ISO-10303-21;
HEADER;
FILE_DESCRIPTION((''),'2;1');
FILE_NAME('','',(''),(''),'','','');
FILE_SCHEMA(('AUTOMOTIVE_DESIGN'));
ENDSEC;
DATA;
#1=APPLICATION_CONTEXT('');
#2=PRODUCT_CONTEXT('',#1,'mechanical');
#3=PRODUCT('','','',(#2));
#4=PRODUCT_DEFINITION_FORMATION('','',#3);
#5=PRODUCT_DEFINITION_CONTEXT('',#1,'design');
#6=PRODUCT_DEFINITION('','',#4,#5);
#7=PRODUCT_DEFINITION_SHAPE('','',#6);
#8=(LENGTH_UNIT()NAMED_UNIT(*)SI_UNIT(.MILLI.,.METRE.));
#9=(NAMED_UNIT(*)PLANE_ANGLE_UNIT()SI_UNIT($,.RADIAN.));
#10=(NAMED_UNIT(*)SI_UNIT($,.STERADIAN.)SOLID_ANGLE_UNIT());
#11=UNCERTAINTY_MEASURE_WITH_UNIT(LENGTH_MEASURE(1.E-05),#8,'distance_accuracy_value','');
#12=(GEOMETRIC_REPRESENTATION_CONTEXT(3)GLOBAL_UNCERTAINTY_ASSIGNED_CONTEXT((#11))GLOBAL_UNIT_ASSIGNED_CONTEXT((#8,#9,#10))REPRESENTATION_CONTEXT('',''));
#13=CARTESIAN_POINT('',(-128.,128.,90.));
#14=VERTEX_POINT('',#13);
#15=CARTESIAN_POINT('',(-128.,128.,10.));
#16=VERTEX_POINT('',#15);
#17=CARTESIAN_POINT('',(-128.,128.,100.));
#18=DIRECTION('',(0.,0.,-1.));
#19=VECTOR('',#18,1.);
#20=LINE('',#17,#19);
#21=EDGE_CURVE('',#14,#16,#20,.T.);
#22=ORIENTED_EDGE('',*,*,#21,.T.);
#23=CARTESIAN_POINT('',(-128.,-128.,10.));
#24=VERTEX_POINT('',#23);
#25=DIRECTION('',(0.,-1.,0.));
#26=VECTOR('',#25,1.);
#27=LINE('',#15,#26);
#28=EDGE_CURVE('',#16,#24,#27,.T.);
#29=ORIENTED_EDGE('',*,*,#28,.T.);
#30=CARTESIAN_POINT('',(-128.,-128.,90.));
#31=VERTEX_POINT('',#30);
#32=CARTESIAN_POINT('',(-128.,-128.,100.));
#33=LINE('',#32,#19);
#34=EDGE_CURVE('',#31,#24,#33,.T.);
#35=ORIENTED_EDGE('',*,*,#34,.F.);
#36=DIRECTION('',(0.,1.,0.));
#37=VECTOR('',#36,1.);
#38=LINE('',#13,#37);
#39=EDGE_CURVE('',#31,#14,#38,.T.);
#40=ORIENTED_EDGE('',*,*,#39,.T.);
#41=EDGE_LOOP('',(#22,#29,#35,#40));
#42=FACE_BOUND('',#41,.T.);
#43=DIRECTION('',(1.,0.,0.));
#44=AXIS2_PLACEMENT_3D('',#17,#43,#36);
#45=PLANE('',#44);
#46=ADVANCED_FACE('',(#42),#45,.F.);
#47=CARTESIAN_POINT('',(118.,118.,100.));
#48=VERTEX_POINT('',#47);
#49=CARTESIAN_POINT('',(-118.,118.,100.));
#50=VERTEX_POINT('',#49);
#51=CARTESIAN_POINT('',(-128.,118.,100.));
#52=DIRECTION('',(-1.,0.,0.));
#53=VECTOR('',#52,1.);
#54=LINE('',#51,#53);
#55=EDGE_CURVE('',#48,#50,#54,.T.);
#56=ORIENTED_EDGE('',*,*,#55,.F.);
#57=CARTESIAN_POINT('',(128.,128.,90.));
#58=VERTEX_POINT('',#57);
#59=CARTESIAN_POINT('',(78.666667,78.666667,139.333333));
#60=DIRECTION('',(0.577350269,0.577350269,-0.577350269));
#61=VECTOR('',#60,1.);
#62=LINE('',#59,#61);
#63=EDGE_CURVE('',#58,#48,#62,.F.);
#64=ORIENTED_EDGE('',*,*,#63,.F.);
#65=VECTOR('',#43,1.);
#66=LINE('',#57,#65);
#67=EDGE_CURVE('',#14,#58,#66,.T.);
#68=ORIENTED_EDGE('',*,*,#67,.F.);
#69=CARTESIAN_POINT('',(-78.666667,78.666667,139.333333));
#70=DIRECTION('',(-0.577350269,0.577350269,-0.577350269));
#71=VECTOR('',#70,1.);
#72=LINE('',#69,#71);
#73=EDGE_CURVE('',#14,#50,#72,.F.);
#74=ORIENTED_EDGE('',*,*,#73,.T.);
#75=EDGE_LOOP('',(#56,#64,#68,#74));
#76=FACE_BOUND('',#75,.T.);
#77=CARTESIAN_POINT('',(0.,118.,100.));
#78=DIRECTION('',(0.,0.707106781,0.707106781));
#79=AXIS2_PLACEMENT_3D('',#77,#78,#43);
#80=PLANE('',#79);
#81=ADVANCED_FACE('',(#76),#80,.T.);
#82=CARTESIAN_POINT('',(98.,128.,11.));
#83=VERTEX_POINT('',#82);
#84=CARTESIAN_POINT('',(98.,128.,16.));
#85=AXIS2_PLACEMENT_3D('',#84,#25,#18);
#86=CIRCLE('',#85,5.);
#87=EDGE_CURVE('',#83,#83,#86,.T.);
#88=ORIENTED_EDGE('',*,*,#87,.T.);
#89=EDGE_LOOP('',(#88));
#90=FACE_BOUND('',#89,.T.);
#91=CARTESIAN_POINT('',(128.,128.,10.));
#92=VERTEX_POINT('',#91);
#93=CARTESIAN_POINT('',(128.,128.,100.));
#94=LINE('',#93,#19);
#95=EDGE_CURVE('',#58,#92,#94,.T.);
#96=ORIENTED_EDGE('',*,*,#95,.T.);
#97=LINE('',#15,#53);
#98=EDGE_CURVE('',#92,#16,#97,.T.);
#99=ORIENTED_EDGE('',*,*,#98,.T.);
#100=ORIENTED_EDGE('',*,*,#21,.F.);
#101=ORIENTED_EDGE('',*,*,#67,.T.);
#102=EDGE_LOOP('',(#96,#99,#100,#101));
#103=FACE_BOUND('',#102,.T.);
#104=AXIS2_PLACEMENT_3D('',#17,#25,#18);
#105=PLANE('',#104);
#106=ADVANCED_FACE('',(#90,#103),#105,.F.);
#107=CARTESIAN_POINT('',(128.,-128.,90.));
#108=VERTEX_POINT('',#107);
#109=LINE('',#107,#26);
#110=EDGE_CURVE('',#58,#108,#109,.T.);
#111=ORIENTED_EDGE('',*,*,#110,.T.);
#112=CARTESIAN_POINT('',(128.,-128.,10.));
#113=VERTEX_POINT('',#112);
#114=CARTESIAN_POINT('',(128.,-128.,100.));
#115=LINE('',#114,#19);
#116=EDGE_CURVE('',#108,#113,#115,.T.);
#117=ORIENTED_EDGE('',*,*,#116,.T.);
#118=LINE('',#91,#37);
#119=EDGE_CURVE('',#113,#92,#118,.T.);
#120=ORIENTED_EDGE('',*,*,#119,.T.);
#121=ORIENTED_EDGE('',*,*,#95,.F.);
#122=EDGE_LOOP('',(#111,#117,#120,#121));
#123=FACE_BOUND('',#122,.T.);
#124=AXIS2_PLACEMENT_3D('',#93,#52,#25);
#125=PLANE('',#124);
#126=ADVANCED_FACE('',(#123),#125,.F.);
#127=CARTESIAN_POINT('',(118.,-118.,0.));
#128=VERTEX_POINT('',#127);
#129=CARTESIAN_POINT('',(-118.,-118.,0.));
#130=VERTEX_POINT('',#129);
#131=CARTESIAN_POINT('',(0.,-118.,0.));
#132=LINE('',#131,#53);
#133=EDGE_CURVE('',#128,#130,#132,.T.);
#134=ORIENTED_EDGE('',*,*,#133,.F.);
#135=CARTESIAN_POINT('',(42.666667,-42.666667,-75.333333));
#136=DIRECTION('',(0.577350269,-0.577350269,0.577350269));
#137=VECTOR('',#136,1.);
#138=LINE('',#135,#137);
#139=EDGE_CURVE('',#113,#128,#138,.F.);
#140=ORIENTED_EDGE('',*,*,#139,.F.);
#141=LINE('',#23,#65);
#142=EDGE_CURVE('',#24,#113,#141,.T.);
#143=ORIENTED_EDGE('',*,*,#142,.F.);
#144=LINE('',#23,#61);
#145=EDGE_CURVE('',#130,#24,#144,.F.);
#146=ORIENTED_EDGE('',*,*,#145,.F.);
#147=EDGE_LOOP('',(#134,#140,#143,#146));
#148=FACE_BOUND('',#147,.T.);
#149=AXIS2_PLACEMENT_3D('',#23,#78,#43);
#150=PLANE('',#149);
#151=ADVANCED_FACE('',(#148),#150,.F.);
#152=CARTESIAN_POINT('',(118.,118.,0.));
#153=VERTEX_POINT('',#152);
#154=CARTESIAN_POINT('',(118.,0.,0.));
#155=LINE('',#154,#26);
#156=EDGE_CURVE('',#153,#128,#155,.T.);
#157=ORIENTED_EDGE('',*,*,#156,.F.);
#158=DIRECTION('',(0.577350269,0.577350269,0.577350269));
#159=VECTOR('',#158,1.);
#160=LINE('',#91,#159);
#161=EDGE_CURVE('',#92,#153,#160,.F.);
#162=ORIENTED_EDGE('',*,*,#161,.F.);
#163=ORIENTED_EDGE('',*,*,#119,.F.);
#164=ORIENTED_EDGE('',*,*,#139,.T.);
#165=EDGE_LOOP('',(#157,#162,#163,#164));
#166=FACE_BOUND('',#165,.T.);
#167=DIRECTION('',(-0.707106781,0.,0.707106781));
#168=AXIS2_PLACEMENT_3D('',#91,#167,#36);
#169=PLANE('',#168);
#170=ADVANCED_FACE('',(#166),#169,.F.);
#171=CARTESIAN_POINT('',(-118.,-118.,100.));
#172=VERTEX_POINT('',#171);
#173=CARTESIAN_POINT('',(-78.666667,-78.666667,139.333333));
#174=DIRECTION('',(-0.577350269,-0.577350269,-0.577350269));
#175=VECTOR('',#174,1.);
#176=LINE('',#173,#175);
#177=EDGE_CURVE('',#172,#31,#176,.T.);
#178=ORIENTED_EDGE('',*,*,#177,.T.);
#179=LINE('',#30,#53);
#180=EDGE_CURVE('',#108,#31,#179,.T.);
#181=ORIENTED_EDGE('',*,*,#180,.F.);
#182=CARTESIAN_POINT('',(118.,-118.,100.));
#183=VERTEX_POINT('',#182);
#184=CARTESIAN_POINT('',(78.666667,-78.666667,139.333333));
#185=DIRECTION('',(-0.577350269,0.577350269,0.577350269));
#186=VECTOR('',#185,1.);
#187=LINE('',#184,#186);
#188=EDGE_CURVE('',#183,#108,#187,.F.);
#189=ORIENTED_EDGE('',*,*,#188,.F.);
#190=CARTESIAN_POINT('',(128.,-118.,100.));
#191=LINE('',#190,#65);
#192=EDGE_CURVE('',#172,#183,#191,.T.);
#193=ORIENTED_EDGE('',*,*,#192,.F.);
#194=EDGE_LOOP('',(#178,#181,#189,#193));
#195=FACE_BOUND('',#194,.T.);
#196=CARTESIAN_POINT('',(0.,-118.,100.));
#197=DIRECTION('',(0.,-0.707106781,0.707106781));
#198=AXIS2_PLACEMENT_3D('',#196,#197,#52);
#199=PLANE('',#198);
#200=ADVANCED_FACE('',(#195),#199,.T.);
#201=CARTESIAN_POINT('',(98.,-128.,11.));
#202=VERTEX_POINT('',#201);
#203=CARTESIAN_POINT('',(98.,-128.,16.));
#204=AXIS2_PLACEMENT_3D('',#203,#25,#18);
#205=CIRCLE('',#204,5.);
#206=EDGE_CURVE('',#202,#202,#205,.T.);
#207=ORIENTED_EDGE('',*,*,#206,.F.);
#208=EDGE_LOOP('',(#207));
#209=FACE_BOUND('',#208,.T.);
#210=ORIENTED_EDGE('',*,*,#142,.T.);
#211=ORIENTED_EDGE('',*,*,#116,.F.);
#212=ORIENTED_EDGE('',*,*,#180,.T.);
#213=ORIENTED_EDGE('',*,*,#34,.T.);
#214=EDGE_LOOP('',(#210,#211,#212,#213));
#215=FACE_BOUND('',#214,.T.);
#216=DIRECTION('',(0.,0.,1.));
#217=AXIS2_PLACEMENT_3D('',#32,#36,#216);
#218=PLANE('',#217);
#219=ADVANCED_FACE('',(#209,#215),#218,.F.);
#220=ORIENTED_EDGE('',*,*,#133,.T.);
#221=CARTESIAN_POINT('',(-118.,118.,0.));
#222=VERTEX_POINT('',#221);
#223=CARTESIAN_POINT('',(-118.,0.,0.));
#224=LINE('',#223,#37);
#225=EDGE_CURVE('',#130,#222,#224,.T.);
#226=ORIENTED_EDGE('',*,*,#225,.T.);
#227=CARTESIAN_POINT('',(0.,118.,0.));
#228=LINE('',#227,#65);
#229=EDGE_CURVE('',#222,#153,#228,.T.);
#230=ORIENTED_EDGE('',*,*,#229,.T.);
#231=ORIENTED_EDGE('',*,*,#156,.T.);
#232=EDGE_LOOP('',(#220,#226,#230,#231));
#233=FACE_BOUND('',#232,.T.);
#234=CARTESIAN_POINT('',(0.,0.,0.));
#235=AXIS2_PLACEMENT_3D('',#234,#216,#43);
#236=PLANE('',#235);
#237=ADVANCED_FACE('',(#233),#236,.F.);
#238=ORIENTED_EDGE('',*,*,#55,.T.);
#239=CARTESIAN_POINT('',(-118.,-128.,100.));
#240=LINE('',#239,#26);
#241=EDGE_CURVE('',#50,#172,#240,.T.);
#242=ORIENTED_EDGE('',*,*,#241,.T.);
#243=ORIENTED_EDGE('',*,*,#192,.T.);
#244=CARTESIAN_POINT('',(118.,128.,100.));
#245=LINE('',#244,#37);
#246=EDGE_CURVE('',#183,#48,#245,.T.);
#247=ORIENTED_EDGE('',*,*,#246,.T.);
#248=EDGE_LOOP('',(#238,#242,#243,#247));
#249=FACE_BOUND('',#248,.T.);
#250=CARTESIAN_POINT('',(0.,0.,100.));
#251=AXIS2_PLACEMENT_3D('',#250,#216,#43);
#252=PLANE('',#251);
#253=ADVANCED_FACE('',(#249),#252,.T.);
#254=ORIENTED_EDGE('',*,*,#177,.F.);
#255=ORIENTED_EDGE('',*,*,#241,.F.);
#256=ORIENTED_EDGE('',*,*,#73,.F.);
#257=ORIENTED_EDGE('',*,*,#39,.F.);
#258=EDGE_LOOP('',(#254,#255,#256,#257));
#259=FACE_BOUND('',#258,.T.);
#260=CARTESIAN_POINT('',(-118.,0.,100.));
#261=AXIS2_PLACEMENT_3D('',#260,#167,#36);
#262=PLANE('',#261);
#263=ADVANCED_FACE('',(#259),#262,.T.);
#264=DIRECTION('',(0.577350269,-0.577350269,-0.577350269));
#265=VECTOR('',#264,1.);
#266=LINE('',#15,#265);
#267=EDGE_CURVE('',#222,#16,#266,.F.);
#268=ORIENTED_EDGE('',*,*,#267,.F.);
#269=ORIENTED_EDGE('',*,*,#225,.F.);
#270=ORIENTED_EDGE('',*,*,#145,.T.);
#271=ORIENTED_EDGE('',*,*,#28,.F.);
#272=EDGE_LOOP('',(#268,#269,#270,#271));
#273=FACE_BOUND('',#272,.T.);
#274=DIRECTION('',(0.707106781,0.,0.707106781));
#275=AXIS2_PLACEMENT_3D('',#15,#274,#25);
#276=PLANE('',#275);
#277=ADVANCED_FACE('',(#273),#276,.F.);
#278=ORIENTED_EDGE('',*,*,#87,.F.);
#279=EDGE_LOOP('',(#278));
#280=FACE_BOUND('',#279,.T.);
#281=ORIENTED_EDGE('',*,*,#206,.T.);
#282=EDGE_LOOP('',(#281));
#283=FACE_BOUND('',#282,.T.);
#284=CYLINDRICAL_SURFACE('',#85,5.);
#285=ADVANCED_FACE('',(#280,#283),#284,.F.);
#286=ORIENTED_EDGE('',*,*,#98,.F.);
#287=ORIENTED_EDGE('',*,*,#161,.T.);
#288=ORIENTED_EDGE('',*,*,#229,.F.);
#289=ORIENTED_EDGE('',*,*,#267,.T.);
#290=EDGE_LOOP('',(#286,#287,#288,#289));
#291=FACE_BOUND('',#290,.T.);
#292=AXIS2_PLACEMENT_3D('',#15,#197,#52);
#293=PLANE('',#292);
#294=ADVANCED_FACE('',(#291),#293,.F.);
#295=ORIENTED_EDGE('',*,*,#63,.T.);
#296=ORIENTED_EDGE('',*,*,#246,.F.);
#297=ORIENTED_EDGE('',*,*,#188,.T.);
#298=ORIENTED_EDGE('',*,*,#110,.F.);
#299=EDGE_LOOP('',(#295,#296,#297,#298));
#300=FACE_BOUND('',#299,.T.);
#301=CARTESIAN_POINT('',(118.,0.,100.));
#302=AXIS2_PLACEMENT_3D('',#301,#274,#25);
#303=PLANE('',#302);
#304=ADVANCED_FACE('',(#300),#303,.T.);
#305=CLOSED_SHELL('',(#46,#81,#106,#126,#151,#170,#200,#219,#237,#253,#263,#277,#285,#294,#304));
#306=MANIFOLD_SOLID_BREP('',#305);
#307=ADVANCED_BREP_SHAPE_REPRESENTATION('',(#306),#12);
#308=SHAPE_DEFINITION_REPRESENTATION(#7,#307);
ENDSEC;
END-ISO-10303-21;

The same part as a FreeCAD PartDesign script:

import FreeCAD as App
import Part
import Sketcher

V = App.Vector
Q = App.Units.Quantity


def edges_at(feature, points):
    """Names of the edges that pass closest to the given points."""
    edges = feature.Shape.Edges
    near = lambda p: min(range(len(edges)), key=lambda i: edges[i].distToShape(Part.Vertex(*p))[0])
    return sorted({f"Edge{near(p) + 1}" for p in points})


def add_polygon(sketch, points):
    """Adds a closed chain of lines whose ends are joined by coincident constraints."""
    first, n = sketch.GeometryCount, len(points)
    for a, b in zip(points, points[1:] + points[:1]):
        sketch.addGeometry(Part.LineSegment(App.Vector(*a, 0), App.Vector(*b, 0)), False)
    for i in range(n):
        sketch.addConstraint(Sketcher.Constraint("Coincident", first + i, 2, first + (i + 1) % n, 1))

doc = App.newDocument("Part")
body = doc.addObject("PartDesign::Body", "Body")

# Sketch on XY plane
sketch1 = body.newObject("Sketcher::SketchObject", "Sketch")
sketch1.AttachmentSupport = (doc.getObject("XY_Plane"), [""])
sketch1.MapMode = "FlatFace"
add_polygon(sketch1, [(-128, 128), (-128, -128), (128, -128), (128, 128)])  # lines 0-3
sketch1.addConstraint(Sketcher.Constraint("Vertical", 0))
sketch1.addConstraint(Sketcher.Constraint("Horizontal", 1))
sketch1.addConstraint(Sketcher.Constraint("Vertical", 2))
sketch1.addConstraint(Sketcher.Constraint("Horizontal", 3))
sketch1.addConstraint(Sketcher.Constraint("Symmetric", 0, 2, 2, 2, -1, 1))
sketch1.addConstraint(Sketcher.Constraint("Equal", 3, 0))
sketch1.addConstraint(Sketcher.Constraint("DistanceX", 1, 1, 1, 2, Q("256 mm")))
pad1 = body.newObject("PartDesign::Pad", "Pad")
pad1.Profile = sketch1
pad1.Length = 100

# Sketch on XZ plane
sketch2 = body.newObject("Sketcher::SketchObject", "Sketch001")
sketch2.AttachmentSupport = (doc.getObject("XZ_Plane"), [""])
sketch2.MapMode = "FlatFace"
sketch2.AttachmentOffset = App.Placement(V(0, 0, 128), App.Rotation())
sketch2.addGeometry(Part.Circle(V(98, 16, 0), V(0, 0, 1), 5), False)
sketch2.addConstraint(Sketcher.Constraint("Diameter", 0, Q("10 mm")))
sketch2.addConstraint(Sketcher.Constraint("DistanceX", -1, 1, 0, 3, Q("98 mm")))
sketch2.addConstraint(Sketcher.Constraint("DistanceY", -1, 1, 0, 3, Q("16 mm")))
pocket1 = body.newObject("PartDesign::Pocket", "Pocket")
pocket1.Profile = sketch2
pocket1.Type = "ThroughAll"
doc.recompute()

chamfer = body.newObject("PartDesign::Chamfer", "Chamfer")
chamfer.Base = (pocket1, edges_at(pocket1, [
    (-128, 0, 100),
    (0, -128, 100),
    (128, 0, 100),
    (0, -128, 0),
    (-128, 0, 0),
    (0, 128, 0),
    (128, 0, 0),
    (0, 128, 100),
]))
chamfer.Size = 10

doc.recompute()
